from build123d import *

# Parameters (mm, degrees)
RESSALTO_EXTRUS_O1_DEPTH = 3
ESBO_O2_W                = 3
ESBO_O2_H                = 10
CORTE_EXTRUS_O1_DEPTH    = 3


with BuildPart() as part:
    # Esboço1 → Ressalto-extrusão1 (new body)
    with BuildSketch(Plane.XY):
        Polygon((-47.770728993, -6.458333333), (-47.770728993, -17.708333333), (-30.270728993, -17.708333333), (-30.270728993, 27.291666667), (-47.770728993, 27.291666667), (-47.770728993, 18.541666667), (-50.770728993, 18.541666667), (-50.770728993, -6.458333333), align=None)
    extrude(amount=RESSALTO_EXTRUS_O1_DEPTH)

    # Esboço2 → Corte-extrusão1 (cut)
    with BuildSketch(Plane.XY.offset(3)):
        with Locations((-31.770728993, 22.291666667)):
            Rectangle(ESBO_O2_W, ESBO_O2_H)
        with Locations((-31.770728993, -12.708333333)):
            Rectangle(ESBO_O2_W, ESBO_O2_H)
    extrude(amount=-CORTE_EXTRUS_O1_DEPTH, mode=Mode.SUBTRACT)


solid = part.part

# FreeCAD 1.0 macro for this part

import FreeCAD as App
import Part
import Sketcher


def add_polygon(sketch, points):
    """Adds a closed chain of lines whose ends are joined by coincident constraints."""
    first, n = sketch.GeometryCount, len(points)
    for a, b in zip(points, points[1:] + points[:1]):
        sketch.addGeometry(Part.LineSegment(App.Vector(*a, 0), App.Vector(*b, 0)), False)
    for i in range(n):
        sketch.addConstraint(Sketcher.Constraint("Coincident", first + i, 2, first + (i + 1) % n, 1))

doc = App.newDocument("Part")
params = doc.addObject("Spreadsheet::Sheet", "Params")
for row, (alias, value) in enumerate([
    ("sketch1_width", "3 mm"),
    ("sketch1_height", "45 mm"),
    ("sketch1_height2", "25 mm"),
    ("sketch1_width2", "17.5 mm"),
    ("sketch1_height3", "11.25 mm"),
    ("pad1_length", "3 mm"),
    ("sketch2_width", "3 mm"),
    ("sketch2_height", "10 mm"),
    ("pocket1_length", "3 mm"),
], start=1):
    params.set(f"A{row}", alias)
    params.set(f"B{row}", "=" + value)
    params.setAlias(f"B{row}", alias)

body = doc.addObject("PartDesign::Body", "Body")

sketch1 = body.newObject("Sketcher::SketchObject", "Sketch")
sketch1.AttachmentSupport = (doc.getObject("XY_Plane"), [""])
sketch1.MapMode = "FlatFace"
add_polygon(sketch1, [(-47.8, -6.5), (-47.8, -17.7), (-30.3, -17.7), (-30.3, 27.3), (-47.8, 27.3), (-47.8, 18.5), (-50.8, 18.5), (-50.8, -6.5)])
sketch1.addConstraint(Sketcher.Constraint("Vertical", 0))
sketch1.addConstraint(Sketcher.Constraint("Horizontal", 1))
sketch1.addConstraint(Sketcher.Constraint("Vertical", 2))
sketch1.addConstraint(Sketcher.Constraint("Horizontal", 3))
sketch1.addConstraint(Sketcher.Constraint("Vertical", 4))
sketch1.addConstraint(Sketcher.Constraint("Horizontal", 5))
sketch1.addConstraint(Sketcher.Constraint("Vertical", 6))
sketch1.addConstraint(Sketcher.Constraint("Horizontal", 7))
sketch1.addConstraint(Sketcher.Constraint("Vertical", 0, 2, 3, 2))
sketch1.addConstraint(Sketcher.Constraint("DistanceX", 5, 2, 5, 1, 3.0))
sketch1.addConstraint(Sketcher.Constraint("DistanceY", 2, 1, 2, 2, 45.0))
sketch1.addConstraint(Sketcher.Constraint("DistanceY", 6, 2, 6, 1, 25.0))
sketch1.addConstraint(Sketcher.Constraint("DistanceX", 1, 1, 1, 2, 17.5))
sketch1.addConstraint(Sketcher.Constraint("DistanceY", 0, 2, 0, 1, 11.25))
sketch1.addConstraint(Sketcher.Constraint("DistanceX", 0, 2, -1, 1, 47.770729))
sketch1.addConstraint(Sketcher.Constraint("DistanceY", 0, 2, -1, 1, 17.708333))
sketch1.setExpression("Constraints[17]", "Params.sketch1_width")
sketch1.setExpression("Constraints[18]", "Params.sketch1_height")
sketch1.setExpression("Constraints[19]", "Params.sketch1_height2")
sketch1.setExpression("Constraints[20]", "Params.sketch1_width2")
sketch1.setExpression("Constraints[21]", "Params.sketch1_height3")
pad1 = body.newObject("PartDesign::Pad", "Pad")
pad1.Profile = sketch1
pad1.setExpression("Length", "Params.pad1_length")

sketch2 = body.newObject("Sketcher::SketchObject", "Sketch001")
sketch2.AttachmentSupport = (doc.getObject("XY_Plane"), [""])
sketch2.MapMode = "FlatFace"
sketch2.AttachmentOffset = App.Placement(App.Vector(0, 0, 3), App.Rotation())
add_polygon(sketch2, [(-33.3, 27.3), (-33.3, 17.3), (-30.3, 17.3), (-30.3, 27.3)])
add_polygon(sketch2, [(-33.3, -7.7), (-33.3, -17.7), (-30.3, -17.7), (-30.3, -7.7)])
sketch2.addConstraint(Sketcher.Constraint("Vertical", 0))
sketch2.addConstraint(Sketcher.Constraint("Horizontal", 1))
sketch2.addConstraint(Sketcher.Constraint("Vertical", 2))
sketch2.addConstraint(Sketcher.Constraint("Horizontal", 3))
sketch2.addConstraint(Sketcher.Constraint("Vertical", 4))
sketch2.addConstraint(Sketcher.Constraint("Horizontal", 5))
sketch2.addConstraint(Sketcher.Constraint("Vertical", 6))
sketch2.addConstraint(Sketcher.Constraint("Horizontal", 7))
sketch2.addConstraint(Sketcher.Constraint("Vertical", 3, 2, 4, 2))
sketch2.addConstraint(Sketcher.Constraint("Vertical", 2, 2, 5, 2))
sketch2.addConstraint(Sketcher.Constraint("Equal", 2, 4))
sketch2.addConstraint(Sketcher.Constraint("DistanceX", 1, 1, 1, 2, 3.0))
sketch2.addConstraint(Sketcher.Constraint("DistanceY", 0, 2, 0, 1, 10.0))
sketch2.addConstraint(Sketcher.Constraint("DistanceY", 4, 2, 0, 2, 35.0))
sketch2.addConstraint(Sketcher.Constraint("DistanceX", 0, 2, -1, 1, 33.270729))
sketch2.addConstraint(Sketcher.Constraint("DistanceY", -1, 1, 0, 2, 17.291667))
sketch2.setExpression("Constraints[19]", "Params.sketch2_width")
sketch2.setExpression("Constraints[20]", "Params.sketch2_height")
pocket1 = body.newObject("PartDesign::Pocket", "Pocket")
pocket1.Profile = sketch2
pocket1.setExpression("Length", "Params.pocket1_length")

doc.recompute()
